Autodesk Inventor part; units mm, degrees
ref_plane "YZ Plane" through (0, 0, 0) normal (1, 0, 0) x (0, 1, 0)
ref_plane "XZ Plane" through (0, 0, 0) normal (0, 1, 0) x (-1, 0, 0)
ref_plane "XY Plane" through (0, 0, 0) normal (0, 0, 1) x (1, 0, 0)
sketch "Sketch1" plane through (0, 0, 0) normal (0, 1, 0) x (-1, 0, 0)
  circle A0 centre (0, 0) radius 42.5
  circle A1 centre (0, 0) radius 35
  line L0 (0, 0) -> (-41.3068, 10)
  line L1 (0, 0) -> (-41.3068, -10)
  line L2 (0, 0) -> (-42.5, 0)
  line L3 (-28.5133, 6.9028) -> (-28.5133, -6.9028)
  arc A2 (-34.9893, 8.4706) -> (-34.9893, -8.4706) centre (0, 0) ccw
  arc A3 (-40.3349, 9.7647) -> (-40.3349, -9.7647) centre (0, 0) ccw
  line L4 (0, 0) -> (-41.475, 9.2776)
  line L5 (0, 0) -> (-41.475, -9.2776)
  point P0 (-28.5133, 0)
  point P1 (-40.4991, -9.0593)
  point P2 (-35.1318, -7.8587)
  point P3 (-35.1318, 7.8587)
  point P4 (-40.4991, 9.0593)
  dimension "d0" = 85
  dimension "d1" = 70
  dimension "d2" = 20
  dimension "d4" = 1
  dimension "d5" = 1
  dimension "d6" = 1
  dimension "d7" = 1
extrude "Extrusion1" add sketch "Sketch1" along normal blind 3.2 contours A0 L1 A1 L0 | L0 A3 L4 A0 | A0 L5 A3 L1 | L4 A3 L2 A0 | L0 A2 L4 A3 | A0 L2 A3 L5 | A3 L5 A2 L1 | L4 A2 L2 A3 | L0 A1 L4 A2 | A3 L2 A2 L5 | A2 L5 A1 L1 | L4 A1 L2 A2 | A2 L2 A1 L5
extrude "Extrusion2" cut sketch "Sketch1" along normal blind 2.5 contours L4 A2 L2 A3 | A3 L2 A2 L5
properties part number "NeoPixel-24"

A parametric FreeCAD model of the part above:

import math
import FreeCAD as App
import Part
import Sketcher
Q = App.Units.Quantity

doc = App.newDocument("Part")
body = doc.addObject("PartDesign::Body", "Body")

sketch1 = doc.addObject("Sketcher::SketchObject", "Sketch")
body.addObject(sketch1)
sketch1.AttachmentSupport = (doc.XZ_Plane, [""])
sketch1.MapMode = "FlatFace"
sketch1.addGeometry([
    Part.Circle(App.Vector(0, 0, 0), App.Vector(0, 0, 1), 42),
    Part.Circle(App.Vector(0, 0, 0), App.Vector(0, 0, 1), 35),
], False)
sketch1.addConstraint([
    Sketcher.Constraint("Coincident", 0, 3, -1, 1),
    Sketcher.Constraint("Coincident", 1, 3, -1, 1),
    Sketcher.Constraint("Diameter", 0, Q("85 mm")),
    Sketcher.Constraint("Diameter", 1, Q("70 mm")),
])
pad1 = doc.addObject("PartDesign::Pad", "Pad")
body.addObject(pad1)
pad1.Profile = sketch1
pad1.Length = 3.2
pad1.Reversed = True

sketch2 = doc.addObject("Sketcher::SketchObject", "Sketch001")
body.addObject(sketch2)
sketch2.AttachmentSupport = (doc.XZ_Plane, [""])
sketch2.MapMode = "FlatFace"
sketch2.addGeometry([
    Part.LineSegment(App.Vector(35, 8, 0), App.Vector(40, 9, 0)),
    Part.ArcOfCircle(Part.Circle(App.Vector(0, 0, 0), App.Vector(0, 0, 1), 42), math.radians(-13), math.radians(13)),
    Part.LineSegment(App.Vector(40, -9, 0), App.Vector(35, -8, 0)),
    Part.ArcOfCircle(Part.Circle(App.Vector(0, 0, 0), App.Vector(0, 0, 1), 36), math.radians(-13), math.radians(13)),
], False)
sketch2.addConstraint([
    Sketcher.Constraint("Coincident", 0, 2, 1, 2),
    Sketcher.Constraint("Coincident", 1, 1, 2, 1),
    Sketcher.Constraint("Coincident", 2, 2, 3, 1),
    Sketcher.Constraint("Coincident", 3, 2, 0, 1),
    Sketcher.Constraint("Coincident", 1, 3, -1, 1),
    Sketcher.Constraint("Coincident", 3, 3, -1, 1),
    Sketcher.Constraint("Vertical", 0, 2, 1, 1),
    Sketcher.Constraint("Vertical", 2, 2, 3, 2),
    Sketcher.Constraint("Radius", 3, Q("36 mm")),
    Sketcher.Constraint("Radius", 1, Q("41.5 mm")),
    Sketcher.Constraint("Angle", 0, Q("12.609 deg")),
    Sketcher.Constraint("DistanceY", 2, 2, 0, 2, Q("16.918 mm")),
])
pocket1 = doc.addObject("PartDesign::Pocket", "Pocket")
body.addObject(pocket1)
pocket1.Profile = sketch2
pocket1.Length = 2.5

doc.recompute()
